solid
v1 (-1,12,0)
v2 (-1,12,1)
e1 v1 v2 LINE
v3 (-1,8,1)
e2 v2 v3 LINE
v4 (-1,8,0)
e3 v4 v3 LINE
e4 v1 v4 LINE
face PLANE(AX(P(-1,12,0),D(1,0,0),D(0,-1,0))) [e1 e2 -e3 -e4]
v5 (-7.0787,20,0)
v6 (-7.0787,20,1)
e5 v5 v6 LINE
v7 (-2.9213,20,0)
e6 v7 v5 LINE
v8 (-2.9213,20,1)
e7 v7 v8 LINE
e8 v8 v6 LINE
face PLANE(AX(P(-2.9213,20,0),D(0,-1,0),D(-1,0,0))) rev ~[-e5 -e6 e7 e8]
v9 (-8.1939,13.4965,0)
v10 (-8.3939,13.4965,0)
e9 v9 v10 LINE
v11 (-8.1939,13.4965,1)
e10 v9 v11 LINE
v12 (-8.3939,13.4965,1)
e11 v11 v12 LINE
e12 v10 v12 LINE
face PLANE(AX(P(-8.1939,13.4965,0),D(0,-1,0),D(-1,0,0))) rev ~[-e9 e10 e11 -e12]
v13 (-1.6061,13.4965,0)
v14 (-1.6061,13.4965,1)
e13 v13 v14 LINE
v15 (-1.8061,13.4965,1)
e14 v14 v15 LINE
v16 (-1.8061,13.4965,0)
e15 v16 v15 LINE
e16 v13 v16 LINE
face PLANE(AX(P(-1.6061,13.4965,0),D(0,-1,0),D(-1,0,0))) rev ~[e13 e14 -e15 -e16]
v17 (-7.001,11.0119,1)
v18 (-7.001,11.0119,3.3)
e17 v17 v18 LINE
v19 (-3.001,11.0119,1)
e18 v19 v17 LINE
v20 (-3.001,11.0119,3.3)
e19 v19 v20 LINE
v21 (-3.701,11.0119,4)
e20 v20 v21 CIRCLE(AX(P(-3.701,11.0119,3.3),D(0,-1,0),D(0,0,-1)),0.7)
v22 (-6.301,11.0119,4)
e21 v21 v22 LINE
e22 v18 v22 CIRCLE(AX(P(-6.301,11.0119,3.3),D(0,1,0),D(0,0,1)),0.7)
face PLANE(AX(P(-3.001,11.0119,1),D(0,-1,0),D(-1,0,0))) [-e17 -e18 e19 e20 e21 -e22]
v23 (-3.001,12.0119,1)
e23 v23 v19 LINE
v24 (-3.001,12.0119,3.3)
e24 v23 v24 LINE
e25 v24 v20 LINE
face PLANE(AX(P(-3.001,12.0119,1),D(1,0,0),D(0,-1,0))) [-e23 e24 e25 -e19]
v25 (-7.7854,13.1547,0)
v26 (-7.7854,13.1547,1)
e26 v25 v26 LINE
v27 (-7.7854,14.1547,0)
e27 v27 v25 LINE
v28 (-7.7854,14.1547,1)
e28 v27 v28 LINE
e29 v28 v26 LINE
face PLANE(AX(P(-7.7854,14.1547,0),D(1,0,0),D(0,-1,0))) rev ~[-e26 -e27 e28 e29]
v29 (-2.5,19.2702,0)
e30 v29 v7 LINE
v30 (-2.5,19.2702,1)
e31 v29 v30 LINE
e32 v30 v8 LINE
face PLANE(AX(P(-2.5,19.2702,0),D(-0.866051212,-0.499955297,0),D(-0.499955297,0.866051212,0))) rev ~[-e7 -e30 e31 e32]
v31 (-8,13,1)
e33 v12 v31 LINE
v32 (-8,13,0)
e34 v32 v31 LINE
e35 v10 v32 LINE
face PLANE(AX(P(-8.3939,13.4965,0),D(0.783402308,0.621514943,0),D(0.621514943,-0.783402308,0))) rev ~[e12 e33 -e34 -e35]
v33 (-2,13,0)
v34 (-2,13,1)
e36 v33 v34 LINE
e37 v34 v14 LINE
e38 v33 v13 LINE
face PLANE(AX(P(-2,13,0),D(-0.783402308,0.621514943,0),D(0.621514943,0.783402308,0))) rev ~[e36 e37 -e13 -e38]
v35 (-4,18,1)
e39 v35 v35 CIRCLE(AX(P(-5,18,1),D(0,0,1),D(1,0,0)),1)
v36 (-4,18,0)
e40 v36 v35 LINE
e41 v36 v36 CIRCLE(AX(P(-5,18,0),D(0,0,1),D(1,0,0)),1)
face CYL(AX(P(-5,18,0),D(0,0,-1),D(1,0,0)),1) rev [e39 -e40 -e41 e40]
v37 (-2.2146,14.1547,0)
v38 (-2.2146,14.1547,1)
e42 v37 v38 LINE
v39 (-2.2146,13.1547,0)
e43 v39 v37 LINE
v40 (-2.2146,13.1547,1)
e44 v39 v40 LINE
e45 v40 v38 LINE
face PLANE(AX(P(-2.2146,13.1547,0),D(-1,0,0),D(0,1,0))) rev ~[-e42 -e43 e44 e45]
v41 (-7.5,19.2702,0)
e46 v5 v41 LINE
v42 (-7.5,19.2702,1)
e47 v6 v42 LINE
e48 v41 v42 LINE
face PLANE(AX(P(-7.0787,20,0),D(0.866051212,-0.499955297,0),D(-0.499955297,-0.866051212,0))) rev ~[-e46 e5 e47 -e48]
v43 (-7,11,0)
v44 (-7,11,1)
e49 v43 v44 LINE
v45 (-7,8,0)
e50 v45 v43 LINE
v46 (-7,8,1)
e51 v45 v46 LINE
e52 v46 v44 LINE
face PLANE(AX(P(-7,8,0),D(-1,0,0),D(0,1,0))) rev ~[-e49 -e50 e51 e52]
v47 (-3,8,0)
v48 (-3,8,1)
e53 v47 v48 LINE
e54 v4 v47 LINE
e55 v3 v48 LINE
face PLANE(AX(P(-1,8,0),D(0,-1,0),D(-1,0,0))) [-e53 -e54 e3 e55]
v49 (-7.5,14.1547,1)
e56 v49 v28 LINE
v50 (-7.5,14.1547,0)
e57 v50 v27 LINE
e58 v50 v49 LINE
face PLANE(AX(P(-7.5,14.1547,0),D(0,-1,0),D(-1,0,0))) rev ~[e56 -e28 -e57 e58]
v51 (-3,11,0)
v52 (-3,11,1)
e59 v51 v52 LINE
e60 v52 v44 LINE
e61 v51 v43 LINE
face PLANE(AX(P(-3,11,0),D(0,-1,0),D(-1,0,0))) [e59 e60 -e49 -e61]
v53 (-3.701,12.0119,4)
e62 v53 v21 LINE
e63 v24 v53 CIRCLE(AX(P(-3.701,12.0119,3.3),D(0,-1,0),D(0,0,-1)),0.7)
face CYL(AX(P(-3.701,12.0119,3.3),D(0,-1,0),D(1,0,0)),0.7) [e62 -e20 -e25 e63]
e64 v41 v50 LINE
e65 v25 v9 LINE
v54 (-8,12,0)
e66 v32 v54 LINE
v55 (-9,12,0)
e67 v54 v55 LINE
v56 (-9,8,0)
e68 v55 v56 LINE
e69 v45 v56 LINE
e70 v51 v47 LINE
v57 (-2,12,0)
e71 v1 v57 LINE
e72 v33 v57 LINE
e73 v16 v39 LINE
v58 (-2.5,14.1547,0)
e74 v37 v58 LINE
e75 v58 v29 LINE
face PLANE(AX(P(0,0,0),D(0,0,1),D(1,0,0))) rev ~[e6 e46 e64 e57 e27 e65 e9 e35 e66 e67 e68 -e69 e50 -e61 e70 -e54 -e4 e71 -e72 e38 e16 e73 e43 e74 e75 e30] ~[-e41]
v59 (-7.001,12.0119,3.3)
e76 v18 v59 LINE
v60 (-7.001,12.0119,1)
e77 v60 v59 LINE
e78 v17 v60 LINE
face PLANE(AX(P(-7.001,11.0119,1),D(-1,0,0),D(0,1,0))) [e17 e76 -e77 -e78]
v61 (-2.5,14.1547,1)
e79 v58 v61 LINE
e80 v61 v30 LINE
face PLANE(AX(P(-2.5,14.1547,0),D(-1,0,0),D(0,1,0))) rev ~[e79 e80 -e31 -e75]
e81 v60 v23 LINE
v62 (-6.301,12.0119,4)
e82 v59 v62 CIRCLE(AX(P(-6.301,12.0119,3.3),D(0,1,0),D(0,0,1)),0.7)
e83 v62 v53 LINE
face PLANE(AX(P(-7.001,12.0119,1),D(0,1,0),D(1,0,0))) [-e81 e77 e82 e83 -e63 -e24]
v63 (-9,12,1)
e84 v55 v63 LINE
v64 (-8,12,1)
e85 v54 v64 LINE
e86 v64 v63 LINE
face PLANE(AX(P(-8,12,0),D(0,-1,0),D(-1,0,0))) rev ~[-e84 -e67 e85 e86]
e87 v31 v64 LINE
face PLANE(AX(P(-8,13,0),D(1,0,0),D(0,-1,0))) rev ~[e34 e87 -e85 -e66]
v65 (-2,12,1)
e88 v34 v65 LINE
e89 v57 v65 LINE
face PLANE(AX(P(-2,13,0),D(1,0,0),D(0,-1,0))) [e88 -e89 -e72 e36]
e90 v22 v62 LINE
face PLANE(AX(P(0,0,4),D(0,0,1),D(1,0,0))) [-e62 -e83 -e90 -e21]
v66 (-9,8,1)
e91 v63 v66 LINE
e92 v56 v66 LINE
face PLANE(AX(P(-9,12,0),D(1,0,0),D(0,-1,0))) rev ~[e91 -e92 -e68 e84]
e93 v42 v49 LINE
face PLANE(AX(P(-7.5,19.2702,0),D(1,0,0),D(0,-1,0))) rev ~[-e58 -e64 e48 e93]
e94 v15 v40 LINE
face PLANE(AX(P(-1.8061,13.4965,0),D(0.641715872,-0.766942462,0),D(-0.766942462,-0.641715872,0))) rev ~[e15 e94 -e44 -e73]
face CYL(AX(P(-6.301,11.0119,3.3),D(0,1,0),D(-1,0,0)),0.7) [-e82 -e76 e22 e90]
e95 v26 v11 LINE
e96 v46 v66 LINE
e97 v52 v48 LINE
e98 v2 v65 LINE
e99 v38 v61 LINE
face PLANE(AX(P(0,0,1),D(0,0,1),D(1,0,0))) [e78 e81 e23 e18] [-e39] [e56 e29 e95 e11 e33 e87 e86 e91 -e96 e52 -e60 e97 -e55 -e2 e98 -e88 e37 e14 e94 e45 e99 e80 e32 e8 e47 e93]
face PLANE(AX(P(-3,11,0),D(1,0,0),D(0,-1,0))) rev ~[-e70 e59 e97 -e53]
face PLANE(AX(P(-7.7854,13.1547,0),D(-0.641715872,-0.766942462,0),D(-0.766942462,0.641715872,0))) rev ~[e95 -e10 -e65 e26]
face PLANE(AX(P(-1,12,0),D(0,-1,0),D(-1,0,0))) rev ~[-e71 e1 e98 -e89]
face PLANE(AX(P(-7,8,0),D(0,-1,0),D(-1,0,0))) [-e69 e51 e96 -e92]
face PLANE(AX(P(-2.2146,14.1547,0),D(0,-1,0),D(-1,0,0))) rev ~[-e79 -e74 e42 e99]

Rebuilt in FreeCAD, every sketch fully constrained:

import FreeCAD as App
import Part
import Sketcher
Q = App.Units.Quantity


def edges_at(feature, points):
    """Names of the edges that pass closest to the given points."""
    edges = feature.Shape.Edges
    near = lambda p: min(range(len(edges)), key=lambda i: edges[i].distToShape(Part.Vertex(*p))[0])
    return sorted({f"Edge{near(p) + 1}" for p in points})

doc = App.newDocument("Part")
params = doc.addObject("Spreadsheet::Sheet", "Params")
for row, (alias, value) in enumerate([
    ("sketch1_diameter", "2 mm"),
    ("sketch1_width", "1 mm"),
    ("sketch1_width2", "2 mm"),
    ("sketch1_width3", "4 mm"),
    ("sketch1_height", "3 mm"),
    ("pad1_length", "1 mm"),
    ("sketch2_width", "4 mm"),
    ("sketch2_height", "1 mm"),
    ("pad2_length", "3 mm"),
    ("fillet_radius", "0.7 mm"),
], start=1):
    params.set(f"A{row}", alias)
    params.set(f"B{row}", "=" + value)
    params.setAlias(f"B{row}", alias)

body = doc.addObject("PartDesign::Body", "Body")

# Sketch on XY plane
sketch1 = body.newObject("Sketcher::SketchObject", "Sketch")
sketch1.AttachmentSupport = (doc.getObject("XY_Plane"), [""])
sketch1.MapMode = "FlatFace"
sketch1.addGeometry([
    Part.LineSegment(App.Vector(-8.19, 13.5, 0), App.Vector(-8.39, 13.5, 0)),  # 0
    Part.LineSegment(App.Vector(-8.39, 13.5, 0), App.Vector(-8, 13, 0)),  # 1
    Part.LineSegment(App.Vector(-8, 13, 0), App.Vector(-8, 12, 0)),  # 2
    Part.LineSegment(App.Vector(-8, 12, 0), App.Vector(-9, 12, 0)),  # 3
    Part.LineSegment(App.Vector(-9, 12, 0), App.Vector(-9, 8, 0)),  # 4
    Part.LineSegment(App.Vector(-9, 8, 0), App.Vector(-7, 8, 0)),  # 5
    Part.LineSegment(App.Vector(-7, 8, 0), App.Vector(-7, 11, 0)),  # 6
    Part.LineSegment(App.Vector(-7, 11, 0), App.Vector(-3, 11, 0)),  # 7
    Part.LineSegment(App.Vector(-3, 11, 0), App.Vector(-3, 8, 0)),  # 8
    Part.LineSegment(App.Vector(-3, 8, 0), App.Vector(-1, 8, 0)),  # 9
    Part.LineSegment(App.Vector(-1, 8, 0), App.Vector(-1, 12, 0)),  # 10
    Part.LineSegment(App.Vector(-1, 12, 0), App.Vector(-2, 12, 0)),  # 11
    Part.LineSegment(App.Vector(-2, 12, 0), App.Vector(-2, 13, 0)),  # 12
    Part.LineSegment(App.Vector(-2, 13, 0), App.Vector(-1.61, 13.5, 0)),  # 13
    Part.LineSegment(App.Vector(-1.61, 13.5, 0), App.Vector(-1.81, 13.5, 0)),  # 14
    Part.LineSegment(App.Vector(-1.81, 13.5, 0), App.Vector(-2.21, 13.15, 0)),  # 15
    Part.LineSegment(App.Vector(-2.21, 13.15, 0), App.Vector(-2.21, 14.15, 0)),  # 16
    Part.LineSegment(App.Vector(-2.21, 14.15, 0), App.Vector(-2.5, 14.15, 0)),  # 17
    Part.LineSegment(App.Vector(-2.5, 14.15, 0), App.Vector(-2.5, 19.27, 0)),  # 18
    Part.LineSegment(App.Vector(-2.5, 19.27, 0), App.Vector(-2.92, 20, 0)),  # 19
    Part.LineSegment(App.Vector(-2.92, 20, 0), App.Vector(-7.08, 20, 0)),  # 20
    Part.LineSegment(App.Vector(-7.08, 20, 0), App.Vector(-7.5, 19.27, 0)),  # 21
    Part.LineSegment(App.Vector(-7.5, 19.27, 0), App.Vector(-7.5, 14.15, 0)),  # 22
    Part.LineSegment(App.Vector(-7.5, 14.15, 0), App.Vector(-7.79, 14.15, 0)),  # 23
    Part.LineSegment(App.Vector(-7.79, 14.15, 0), App.Vector(-7.79, 13.15, 0)),  # 24
    Part.LineSegment(App.Vector(-7.79, 13.15, 0), App.Vector(-8.19, 13.5, 0)),  # 25
    Part.Circle(App.Vector(-5, 18, 0), App.Vector(0, 0, 1), 1),  # 26
], False)
sketch1.addConstraint([
    Sketcher.Constraint("Coincident", 0, 2, 1, 1),
    Sketcher.Constraint("Coincident", 1, 2, 2, 1),
    Sketcher.Constraint("Coincident", 2, 2, 3, 1),
    Sketcher.Constraint("Coincident", 3, 2, 4, 1),
    Sketcher.Constraint("Coincident", 4, 2, 5, 1),
    Sketcher.Constraint("Coincident", 5, 2, 6, 1),
    Sketcher.Constraint("Coincident", 6, 2, 7, 1),
    Sketcher.Constraint("Coincident", 7, 2, 8, 1),
    Sketcher.Constraint("Coincident", 8, 2, 9, 1),
    Sketcher.Constraint("Coincident", 9, 2, 10, 1),
    Sketcher.Constraint("Coincident", 10, 2, 11, 1),
    Sketcher.Constraint("Coincident", 11, 2, 12, 1),
    Sketcher.Constraint("Coincident", 12, 2, 13, 1),
    Sketcher.Constraint("Coincident", 13, 2, 14, 1),
    Sketcher.Constraint("Coincident", 14, 2, 15, 1),
    Sketcher.Constraint("Coincident", 15, 2, 16, 1),
    Sketcher.Constraint("Coincident", 16, 2, 17, 1),
    Sketcher.Constraint("Coincident", 17, 2, 18, 1),
    Sketcher.Constraint("Coincident", 18, 2, 19, 1),
    Sketcher.Constraint("Coincident", 19, 2, 20, 1),
    Sketcher.Constraint("Coincident", 20, 2, 21, 1),
    Sketcher.Constraint("Coincident", 21, 2, 22, 1),
    Sketcher.Constraint("Coincident", 22, 2, 23, 1),
    Sketcher.Constraint("Coincident", 23, 2, 24, 1),
    Sketcher.Constraint("Coincident", 24, 2, 25, 1),
    Sketcher.Constraint("Coincident", 25, 2, 0, 1),
    Sketcher.Constraint("Horizontal", 0),
    Sketcher.Constraint("Vertical", 2),
    Sketcher.Constraint("Horizontal", 3),
    Sketcher.Constraint("Vertical", 4),
    Sketcher.Constraint("Horizontal", 5),
    Sketcher.Constraint("Vertical", 6),
    Sketcher.Constraint("Horizontal", 7),
    Sketcher.Constraint("Vertical", 8),
    Sketcher.Constraint("Horizontal", 9),
    Sketcher.Constraint("Vertical", 10),
    Sketcher.Constraint("Horizontal", 11),
    Sketcher.Constraint("Vertical", 12),
    Sketcher.Constraint("Horizontal", 14),
    Sketcher.Constraint("Vertical", 16),
    Sketcher.Constraint("Horizontal", 17),
    Sketcher.Constraint("Vertical", 18),
    Sketcher.Constraint("Horizontal", 20),
    Sketcher.Constraint("Vertical", 22),
    Sketcher.Constraint("Horizontal", 23),
    Sketcher.Constraint("Vertical", 24),
    Sketcher.Constraint("Horizontal", 5, 2, 8, 2),
    Sketcher.Constraint("Horizontal", 3, 2, 10, 2),
    Sketcher.Constraint("Horizontal", 1, 2, 12, 2),
    Sketcher.Constraint("Horizontal", 0, 2, 13, 2),
    Sketcher.Constraint("Horizontal", 18, 2, 21, 2),
    Sketcher.Constraint("Horizontal", 17, 2, 22, 2),
    Sketcher.Constraint("Horizontal", 15, 2, 24, 2),
    Sketcher.Constraint("Equal", 5, 9),
    Sketcher.Constraint("Equal", 3, 11),
    Sketcher.Constraint("Equal", 0, 14),
    Sketcher.Constraint("Equal", 17, 23),
    Sketcher.Constraint("Equal", 11, 2),
    Sketcher.Constraint("Equal", 7, 4),
    Sketcher.Constraint("Equal", 12, 16),
    Sketcher.Constraint("Equal", 1, 13),
    Sketcher.Constraint("Equal", 19, 21),
    Sketcher.Constraint("Equal", 15, 25),
    Sketcher.Constraint("Diameter", 26, 2.0),
    Sketcher.Constraint("DistanceX", 3, 2, 3, 1, 1.0),
    Sketcher.Constraint("DistanceX", 5, 1, 5, 2, 2.0),
    Sketcher.Constraint("DistanceX", 7, 1, 7, 2, 4.0),
    Sketcher.Constraint("DistanceY", 6, 1, 6, 2, 3.0),
    Sketcher.Constraint("DistanceX", 0, 2, 0, 1, 0.2),
    Sketcher.Constraint("DistanceX", 26, 3, -1, 1, 5.0),
    Sketcher.Constraint("DistanceY", -1, 1, 26, 3, 18.0),
    Sketcher.Constraint("DistanceX", 1, 2, -1, 1, 8.0),
    Sketcher.Constraint("DistanceY", -1, 1, 1, 2, 13.0),
    Sketcher.Constraint("DistanceY", -1, 1, 19, 2, 20.0),
    Sketcher.Constraint("DistanceX", 21, 2, 18, 2, 5.0),
    Sketcher.Constraint("Angle", 15, Q("-140.08 deg")),
    Sketcher.Constraint("DistanceX", 17, 2, 17, 1, 0.2854),
    Sketcher.Constraint("DistanceX", 20, 2, 20, 1, 4.1574),
    Sketcher.Constraint("DistanceY", 18, 1, 18, 2, 5.1155),
    Sketcher.Constraint("DistanceX", 0, 2, -1, 1, 8.394),
    Sketcher.Constraint("Distance", 1, 0.6338),
])
sketch1.setExpression("Constraints[63]", "Params.sketch1_diameter")
sketch1.setExpression("Constraints[64]", "Params.sketch1_width")
sketch1.setExpression("Constraints[65]", "Params.sketch1_width2")
sketch1.setExpression("Constraints[66]", "Params.sketch1_width3")
sketch1.setExpression("Constraints[67]", "Params.sketch1_height")
pad1 = body.newObject("PartDesign::Pad", "Pad")
pad1.Profile = sketch1
pad1.setExpression("Length", "Params.pad1_length")

# Sketch on XY plane
sketch2 = body.newObject("Sketcher::SketchObject", "Sketch001")
sketch2.AttachmentSupport = (doc.getObject("XY_Plane"), [""])
sketch2.MapMode = "FlatFace"
sketch2.AttachmentOffset = App.Placement(App.Vector(0, 0, 1), App.Rotation())
sketch2.addGeometry([
    Part.LineSegment(App.Vector(-7, 11, 0), App.Vector(-3, 11, 0)),
    Part.LineSegment(App.Vector(-3, 11, 0), App.Vector(-3, 12, 0)),
    Part.LineSegment(App.Vector(-3, 12, 0), App.Vector(-7, 12, 0)),
    Part.LineSegment(App.Vector(-7, 12, 0), App.Vector(-7, 11, 0)),
], False)
sketch2.addConstraint([
    Sketcher.Constraint("Coincident", 0, 2, 1, 1),
    Sketcher.Constraint("Coincident", 1, 2, 2, 1),
    Sketcher.Constraint("Coincident", 2, 2, 3, 1),
    Sketcher.Constraint("Coincident", 3, 2, 0, 1),
    Sketcher.Constraint("Horizontal", 0),
    Sketcher.Constraint("Vertical", 1),
    Sketcher.Constraint("Horizontal", 2),
    Sketcher.Constraint("Vertical", 3),
    Sketcher.Constraint("DistanceX", 0, 1, 0, 2, 4.0),
    Sketcher.Constraint("DistanceY", 1, 1, 1, 2, 1.0),
    Sketcher.Constraint("DistanceX", 0, 2, -1, 1, 3.001),
    Sketcher.Constraint("DistanceY", -1, 1, 0, 2, 11.012),
])
sketch2.setExpression("Constraints[8]", "Params.sketch2_width")
sketch2.setExpression("Constraints[9]", "Params.sketch2_height")
pad2 = body.newObject("PartDesign::Pad", "Pad001")
pad2.Profile = sketch2
pad2.setExpression("Length", "Params.pad2_length")
doc.recompute()

fillet = body.newObject("PartDesign::Fillet", "Fillet")
fillet.Base = (pad2, edges_at(pad2, [(-7.001, 11.512, 4), (-3.001, 11.512, 4)]))
fillet.setExpression("Radius", "Params.fillet_radius")

doc.recompute()
